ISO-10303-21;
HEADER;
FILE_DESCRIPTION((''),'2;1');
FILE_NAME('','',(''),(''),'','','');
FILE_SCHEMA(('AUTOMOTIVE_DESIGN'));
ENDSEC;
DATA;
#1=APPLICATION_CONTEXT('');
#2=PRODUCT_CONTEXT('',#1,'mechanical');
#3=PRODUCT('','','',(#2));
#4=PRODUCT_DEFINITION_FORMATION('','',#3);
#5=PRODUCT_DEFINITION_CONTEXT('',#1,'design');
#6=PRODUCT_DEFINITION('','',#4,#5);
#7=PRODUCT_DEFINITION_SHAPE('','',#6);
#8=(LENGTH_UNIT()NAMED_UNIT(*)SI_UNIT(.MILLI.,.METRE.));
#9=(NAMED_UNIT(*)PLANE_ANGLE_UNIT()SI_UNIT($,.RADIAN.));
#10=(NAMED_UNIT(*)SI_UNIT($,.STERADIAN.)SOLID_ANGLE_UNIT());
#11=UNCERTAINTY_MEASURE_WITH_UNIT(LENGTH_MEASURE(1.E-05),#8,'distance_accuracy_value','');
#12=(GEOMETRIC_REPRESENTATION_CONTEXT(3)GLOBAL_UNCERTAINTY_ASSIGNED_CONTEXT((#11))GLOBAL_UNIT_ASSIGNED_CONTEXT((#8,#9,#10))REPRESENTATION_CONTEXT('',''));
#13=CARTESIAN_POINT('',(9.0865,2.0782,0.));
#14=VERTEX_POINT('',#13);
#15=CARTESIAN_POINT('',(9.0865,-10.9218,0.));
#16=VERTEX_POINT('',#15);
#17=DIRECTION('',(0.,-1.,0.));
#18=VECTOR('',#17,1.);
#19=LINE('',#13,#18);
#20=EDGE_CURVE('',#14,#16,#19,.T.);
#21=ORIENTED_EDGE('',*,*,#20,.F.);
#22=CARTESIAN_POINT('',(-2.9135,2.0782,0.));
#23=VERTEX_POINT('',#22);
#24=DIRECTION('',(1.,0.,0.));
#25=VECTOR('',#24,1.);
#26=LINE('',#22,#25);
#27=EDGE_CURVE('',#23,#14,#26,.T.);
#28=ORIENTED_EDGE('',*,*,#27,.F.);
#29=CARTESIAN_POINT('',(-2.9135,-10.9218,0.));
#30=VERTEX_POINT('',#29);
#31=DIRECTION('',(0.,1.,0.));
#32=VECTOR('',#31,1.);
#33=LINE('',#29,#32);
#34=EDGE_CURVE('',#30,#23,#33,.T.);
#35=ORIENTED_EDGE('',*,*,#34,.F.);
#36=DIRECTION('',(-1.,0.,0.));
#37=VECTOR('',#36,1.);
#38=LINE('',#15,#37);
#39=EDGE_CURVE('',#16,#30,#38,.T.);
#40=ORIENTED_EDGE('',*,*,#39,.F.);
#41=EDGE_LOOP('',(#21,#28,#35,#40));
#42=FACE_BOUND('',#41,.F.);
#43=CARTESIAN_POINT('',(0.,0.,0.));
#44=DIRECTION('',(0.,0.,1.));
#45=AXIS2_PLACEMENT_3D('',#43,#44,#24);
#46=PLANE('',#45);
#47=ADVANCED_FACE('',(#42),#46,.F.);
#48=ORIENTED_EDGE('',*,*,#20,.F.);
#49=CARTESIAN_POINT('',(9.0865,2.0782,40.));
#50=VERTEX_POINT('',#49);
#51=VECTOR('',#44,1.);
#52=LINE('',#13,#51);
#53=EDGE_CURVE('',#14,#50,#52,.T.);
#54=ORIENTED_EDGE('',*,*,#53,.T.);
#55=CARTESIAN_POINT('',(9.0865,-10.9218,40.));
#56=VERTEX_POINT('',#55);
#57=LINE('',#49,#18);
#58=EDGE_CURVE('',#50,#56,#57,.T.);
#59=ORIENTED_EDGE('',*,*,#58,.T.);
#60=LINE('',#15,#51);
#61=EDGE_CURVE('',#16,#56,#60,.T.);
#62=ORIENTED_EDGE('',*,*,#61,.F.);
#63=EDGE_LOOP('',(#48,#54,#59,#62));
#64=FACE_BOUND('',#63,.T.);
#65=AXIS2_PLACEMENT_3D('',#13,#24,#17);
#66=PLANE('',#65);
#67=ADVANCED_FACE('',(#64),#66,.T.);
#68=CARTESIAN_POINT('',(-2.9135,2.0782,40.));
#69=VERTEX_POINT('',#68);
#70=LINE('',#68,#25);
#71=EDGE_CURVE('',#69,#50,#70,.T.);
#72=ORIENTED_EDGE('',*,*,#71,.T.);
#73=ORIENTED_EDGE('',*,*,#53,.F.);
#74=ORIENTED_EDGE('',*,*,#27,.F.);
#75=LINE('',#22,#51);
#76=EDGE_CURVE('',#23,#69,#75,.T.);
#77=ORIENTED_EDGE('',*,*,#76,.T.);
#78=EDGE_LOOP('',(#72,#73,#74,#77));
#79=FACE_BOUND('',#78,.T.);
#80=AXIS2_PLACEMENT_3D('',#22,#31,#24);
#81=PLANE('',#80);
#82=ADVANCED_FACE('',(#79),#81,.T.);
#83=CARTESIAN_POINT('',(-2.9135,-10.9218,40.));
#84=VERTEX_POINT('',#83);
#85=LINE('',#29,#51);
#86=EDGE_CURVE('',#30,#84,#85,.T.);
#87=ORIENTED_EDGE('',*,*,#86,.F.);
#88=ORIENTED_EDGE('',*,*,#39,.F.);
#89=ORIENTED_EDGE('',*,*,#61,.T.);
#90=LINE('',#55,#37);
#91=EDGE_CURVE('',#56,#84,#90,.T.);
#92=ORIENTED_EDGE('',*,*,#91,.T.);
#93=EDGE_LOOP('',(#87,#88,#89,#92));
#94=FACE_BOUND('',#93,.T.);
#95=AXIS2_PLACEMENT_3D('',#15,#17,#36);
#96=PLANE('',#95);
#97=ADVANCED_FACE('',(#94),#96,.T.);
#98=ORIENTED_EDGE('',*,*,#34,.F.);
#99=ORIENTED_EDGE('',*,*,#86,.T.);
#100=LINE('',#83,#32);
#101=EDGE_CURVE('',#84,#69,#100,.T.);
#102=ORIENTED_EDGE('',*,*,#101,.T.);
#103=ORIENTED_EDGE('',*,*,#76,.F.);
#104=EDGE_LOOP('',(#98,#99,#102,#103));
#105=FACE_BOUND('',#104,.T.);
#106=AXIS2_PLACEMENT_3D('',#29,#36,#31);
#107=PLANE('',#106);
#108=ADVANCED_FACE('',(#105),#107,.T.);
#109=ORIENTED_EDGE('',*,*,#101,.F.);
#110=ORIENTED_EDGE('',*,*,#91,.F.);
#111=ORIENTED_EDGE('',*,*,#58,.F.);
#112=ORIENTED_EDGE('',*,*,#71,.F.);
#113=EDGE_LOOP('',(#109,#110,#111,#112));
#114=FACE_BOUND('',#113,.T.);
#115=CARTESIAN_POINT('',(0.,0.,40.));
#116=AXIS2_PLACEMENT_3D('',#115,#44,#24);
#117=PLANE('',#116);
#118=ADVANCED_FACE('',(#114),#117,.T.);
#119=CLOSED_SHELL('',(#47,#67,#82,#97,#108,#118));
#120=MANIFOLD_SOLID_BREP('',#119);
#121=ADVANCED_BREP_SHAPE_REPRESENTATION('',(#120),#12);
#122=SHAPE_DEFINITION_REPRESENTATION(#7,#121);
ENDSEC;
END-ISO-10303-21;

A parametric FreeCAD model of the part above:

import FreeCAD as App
import Part
import Sketcher

V = App.Vector


def add_polygon(sketch, points):
    """Adds a closed chain of lines whose ends are joined by coincident constraints."""
    first, n = sketch.GeometryCount, len(points)
    for a, b in zip(points, points[1:] + points[:1]):
        sketch.addGeometry(Part.LineSegment(App.Vector(*a, 0), App.Vector(*b, 0)), False)
    for i in range(n):
        sketch.addConstraint(Sketcher.Constraint("Coincident", first + i, 2, first + (i + 1) % n, 1))

doc = App.newDocument("Part")
body = doc.addObject("PartDesign::Body", "Body")

sketch1 = body.newObject("Sketcher::SketchObject", "Sketch")
sketch1.AttachmentSupport = (doc.getObject("XY_Plane"), [""])
sketch1.MapMode = "FlatFace"
add_polygon(sketch1, [(9.0865, 2.0782), (-2.9135, 2.0782), (-2.9135, -10.9218), (9.0865, -10.9218)])
sketch1.addConstraint(Sketcher.Constraint("Horizontal", 0))
sketch1.addConstraint(Sketcher.Constraint("Vertical", 1))
sketch1.addConstraint(Sketcher.Constraint("Horizontal", 2))
sketch1.addConstraint(Sketcher.Constraint("Vertical", 3))
sketch1.addConstraint(Sketcher.Constraint("DistanceX", 0, 2, 0, 1, 12.0))
sketch1.addConstraint(Sketcher.Constraint("DistanceY", 1, 2, 1, 1, 13.0))
sketch1.addConstraint(Sketcher.Constraint("DistanceX", 0, 2, -1, 1, 2.9135))
sketch1.addConstraint(Sketcher.Constraint("DistanceY", -1, 1, 0, 2, 2.0782))
pad1 = body.newObject("PartDesign::Pad", "Pad")
pad1.Profile = sketch1
pad1.Length = 40

doc.recompute()
